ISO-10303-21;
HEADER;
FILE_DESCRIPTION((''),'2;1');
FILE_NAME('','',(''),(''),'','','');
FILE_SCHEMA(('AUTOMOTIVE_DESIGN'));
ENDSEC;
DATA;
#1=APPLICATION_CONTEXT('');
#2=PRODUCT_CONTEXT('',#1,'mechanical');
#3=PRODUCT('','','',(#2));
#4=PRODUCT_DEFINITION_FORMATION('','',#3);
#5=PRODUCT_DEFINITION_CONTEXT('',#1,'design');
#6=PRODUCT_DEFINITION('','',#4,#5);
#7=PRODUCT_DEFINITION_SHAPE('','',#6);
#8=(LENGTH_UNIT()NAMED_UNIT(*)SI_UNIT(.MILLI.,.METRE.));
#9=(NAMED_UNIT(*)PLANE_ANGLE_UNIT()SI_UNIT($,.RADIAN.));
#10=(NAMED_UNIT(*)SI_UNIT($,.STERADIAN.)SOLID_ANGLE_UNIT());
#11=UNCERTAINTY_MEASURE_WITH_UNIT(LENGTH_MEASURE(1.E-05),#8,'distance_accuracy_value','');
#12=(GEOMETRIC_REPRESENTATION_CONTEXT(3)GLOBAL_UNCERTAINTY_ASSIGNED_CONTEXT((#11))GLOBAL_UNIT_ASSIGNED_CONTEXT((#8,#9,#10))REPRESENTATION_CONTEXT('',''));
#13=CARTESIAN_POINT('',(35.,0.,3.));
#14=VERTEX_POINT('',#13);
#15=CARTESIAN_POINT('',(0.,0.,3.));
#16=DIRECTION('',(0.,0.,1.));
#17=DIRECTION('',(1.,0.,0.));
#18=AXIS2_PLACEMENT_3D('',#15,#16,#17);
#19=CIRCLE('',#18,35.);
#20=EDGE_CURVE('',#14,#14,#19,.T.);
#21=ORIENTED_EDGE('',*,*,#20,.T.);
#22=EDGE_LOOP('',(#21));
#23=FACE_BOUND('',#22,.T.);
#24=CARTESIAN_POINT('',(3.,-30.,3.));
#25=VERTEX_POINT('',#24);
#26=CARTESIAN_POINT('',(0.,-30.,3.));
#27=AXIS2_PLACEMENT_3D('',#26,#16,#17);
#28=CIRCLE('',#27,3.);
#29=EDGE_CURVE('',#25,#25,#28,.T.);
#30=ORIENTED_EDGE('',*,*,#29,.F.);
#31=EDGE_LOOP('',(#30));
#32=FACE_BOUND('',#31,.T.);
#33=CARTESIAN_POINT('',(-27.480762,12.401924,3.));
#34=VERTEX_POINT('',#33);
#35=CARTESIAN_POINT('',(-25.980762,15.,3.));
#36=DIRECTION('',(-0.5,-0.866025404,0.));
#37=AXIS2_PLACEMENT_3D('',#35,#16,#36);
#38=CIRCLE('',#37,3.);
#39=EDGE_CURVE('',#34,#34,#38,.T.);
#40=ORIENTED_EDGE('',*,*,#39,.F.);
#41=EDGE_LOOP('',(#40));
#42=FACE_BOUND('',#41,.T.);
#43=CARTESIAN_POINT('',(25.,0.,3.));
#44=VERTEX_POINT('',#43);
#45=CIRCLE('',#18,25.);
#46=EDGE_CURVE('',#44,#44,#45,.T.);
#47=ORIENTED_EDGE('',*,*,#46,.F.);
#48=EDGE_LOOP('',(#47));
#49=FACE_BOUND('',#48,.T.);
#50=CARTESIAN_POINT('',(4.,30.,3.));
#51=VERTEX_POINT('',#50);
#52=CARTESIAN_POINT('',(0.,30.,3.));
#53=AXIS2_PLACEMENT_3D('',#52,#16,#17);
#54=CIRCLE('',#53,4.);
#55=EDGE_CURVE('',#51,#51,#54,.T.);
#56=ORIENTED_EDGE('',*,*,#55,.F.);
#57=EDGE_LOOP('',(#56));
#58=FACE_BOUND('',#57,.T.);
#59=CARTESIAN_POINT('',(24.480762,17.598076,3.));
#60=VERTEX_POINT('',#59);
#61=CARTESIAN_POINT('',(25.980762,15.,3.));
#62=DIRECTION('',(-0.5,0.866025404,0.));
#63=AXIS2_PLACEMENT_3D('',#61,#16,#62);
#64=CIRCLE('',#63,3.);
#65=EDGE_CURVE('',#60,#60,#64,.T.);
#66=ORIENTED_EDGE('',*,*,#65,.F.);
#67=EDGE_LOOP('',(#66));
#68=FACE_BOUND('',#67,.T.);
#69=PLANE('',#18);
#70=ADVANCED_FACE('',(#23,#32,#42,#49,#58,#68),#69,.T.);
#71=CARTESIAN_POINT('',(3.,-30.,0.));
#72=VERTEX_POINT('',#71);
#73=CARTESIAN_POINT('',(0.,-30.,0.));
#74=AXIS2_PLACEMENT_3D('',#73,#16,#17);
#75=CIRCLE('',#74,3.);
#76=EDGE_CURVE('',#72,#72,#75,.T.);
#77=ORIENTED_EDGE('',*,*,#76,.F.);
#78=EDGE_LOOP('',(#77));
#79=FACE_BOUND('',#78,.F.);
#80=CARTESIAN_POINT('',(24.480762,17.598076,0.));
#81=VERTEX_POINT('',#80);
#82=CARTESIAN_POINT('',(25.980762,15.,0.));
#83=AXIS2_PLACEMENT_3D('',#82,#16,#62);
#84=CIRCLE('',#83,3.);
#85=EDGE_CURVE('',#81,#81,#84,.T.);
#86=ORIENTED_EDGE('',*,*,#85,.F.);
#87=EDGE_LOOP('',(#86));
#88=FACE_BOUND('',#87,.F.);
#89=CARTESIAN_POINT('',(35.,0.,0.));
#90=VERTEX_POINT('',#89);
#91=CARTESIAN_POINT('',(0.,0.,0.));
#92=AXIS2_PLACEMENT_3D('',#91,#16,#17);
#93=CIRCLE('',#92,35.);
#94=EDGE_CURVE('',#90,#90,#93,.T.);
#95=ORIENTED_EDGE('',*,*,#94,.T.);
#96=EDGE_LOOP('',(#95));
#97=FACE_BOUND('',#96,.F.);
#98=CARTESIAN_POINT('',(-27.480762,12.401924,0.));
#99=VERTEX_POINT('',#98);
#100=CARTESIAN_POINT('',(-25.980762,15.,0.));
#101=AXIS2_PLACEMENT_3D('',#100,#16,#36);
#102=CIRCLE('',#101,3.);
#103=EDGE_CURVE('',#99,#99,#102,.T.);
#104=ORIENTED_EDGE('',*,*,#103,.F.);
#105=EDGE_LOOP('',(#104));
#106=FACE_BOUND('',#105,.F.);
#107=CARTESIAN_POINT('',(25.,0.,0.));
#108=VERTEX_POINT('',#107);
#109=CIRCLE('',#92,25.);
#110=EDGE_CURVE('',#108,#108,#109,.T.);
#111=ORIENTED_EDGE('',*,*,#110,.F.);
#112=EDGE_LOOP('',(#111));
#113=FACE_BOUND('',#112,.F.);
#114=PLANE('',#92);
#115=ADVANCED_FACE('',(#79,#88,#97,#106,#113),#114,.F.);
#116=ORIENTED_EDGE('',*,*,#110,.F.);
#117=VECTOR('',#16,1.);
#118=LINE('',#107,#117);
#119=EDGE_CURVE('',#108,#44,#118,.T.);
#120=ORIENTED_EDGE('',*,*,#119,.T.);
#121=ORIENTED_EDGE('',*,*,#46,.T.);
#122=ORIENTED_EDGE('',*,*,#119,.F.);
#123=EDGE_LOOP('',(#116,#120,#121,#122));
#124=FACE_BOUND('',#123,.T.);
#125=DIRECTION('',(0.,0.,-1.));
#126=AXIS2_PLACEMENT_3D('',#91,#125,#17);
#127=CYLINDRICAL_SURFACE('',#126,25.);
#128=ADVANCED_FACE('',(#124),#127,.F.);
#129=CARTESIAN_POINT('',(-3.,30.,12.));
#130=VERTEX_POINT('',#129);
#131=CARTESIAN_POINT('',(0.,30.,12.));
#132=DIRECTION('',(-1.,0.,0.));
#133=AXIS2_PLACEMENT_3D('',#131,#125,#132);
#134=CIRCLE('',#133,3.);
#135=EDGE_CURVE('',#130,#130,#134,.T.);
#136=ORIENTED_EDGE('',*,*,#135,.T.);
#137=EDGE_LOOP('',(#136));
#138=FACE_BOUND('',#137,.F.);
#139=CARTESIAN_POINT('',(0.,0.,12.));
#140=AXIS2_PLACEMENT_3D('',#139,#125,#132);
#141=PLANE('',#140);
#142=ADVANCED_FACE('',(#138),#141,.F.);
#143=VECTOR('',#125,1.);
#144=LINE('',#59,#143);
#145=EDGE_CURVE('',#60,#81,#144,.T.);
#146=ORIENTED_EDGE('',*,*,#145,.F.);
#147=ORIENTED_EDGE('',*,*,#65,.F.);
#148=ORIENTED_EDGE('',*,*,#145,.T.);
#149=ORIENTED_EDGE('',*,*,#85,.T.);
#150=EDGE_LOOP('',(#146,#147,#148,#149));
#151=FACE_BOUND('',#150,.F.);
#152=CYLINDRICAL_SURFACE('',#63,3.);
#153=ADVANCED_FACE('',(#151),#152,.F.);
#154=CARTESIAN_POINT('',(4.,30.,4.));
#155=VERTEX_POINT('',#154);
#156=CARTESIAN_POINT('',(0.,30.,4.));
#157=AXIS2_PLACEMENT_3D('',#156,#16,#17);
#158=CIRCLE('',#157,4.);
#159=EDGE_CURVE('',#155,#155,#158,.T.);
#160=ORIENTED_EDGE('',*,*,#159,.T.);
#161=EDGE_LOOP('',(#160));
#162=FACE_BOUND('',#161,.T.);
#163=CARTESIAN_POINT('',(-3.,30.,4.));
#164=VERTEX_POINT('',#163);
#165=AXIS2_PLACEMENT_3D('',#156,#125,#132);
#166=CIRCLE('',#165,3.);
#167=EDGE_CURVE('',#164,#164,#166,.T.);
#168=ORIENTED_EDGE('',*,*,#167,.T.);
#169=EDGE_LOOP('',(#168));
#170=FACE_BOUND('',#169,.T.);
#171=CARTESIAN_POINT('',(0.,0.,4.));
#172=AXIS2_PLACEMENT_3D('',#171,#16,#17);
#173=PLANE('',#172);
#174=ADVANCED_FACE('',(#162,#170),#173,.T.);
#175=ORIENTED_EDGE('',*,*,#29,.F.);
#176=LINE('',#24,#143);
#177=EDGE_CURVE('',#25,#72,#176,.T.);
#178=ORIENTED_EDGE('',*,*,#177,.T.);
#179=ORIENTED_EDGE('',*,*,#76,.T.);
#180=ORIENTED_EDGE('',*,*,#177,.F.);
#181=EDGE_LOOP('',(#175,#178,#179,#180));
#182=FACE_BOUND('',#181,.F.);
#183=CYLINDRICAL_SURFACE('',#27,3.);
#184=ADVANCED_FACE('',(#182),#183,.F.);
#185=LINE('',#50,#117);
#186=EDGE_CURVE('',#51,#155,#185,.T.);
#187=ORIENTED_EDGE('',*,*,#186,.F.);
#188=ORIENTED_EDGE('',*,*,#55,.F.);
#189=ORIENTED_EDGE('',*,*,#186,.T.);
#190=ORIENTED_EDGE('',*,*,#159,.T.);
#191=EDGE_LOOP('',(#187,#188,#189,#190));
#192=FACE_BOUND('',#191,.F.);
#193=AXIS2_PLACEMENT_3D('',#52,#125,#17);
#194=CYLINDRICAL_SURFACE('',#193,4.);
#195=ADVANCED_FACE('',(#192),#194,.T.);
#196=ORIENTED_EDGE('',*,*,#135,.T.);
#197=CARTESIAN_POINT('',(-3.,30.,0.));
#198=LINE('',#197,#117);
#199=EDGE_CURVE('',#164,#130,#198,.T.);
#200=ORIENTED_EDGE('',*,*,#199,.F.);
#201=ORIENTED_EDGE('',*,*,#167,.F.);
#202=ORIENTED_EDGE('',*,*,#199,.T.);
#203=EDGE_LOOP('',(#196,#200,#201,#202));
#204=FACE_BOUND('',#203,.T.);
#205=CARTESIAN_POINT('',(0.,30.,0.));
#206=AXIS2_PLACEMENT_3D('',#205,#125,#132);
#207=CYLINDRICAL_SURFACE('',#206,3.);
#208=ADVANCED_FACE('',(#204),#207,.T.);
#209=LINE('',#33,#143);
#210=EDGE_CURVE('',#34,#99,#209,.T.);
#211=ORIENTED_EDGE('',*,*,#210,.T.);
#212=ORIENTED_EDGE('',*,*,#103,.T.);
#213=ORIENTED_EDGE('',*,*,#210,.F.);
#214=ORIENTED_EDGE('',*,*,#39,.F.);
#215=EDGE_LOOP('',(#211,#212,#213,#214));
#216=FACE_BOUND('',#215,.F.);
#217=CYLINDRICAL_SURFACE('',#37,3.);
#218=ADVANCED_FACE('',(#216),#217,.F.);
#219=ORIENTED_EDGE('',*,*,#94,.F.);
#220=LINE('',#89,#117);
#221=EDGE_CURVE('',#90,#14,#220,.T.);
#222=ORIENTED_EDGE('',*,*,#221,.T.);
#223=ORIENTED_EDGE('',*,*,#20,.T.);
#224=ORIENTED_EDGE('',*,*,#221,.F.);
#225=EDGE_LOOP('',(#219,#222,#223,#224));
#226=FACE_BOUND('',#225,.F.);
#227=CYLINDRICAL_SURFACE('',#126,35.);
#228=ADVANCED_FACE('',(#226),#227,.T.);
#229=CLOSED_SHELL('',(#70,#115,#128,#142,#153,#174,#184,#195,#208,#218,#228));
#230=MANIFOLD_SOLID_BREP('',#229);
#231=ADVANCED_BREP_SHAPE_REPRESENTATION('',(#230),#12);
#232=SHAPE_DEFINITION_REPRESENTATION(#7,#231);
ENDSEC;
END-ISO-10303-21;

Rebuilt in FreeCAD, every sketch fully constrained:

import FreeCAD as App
import Part
import Sketcher
from FreeCAD import Vector

doc = App.newDocument("Part")
body = doc.addObject("PartDesign::Body", "Body")

sketch1 = body.newObject("Sketcher::SketchObject", "Sketch")
sketch1.AttachmentSupport = (doc.getObject("XY_Plane"), [""])
sketch1.MapMode = "FlatFace"
sketch1.addGeometry(Part.Circle(Vector(0, 0, 0), Vector(0, 0, 1), 35), False)
sketch1.addGeometry(Part.Circle(Vector(0, 0, 0), Vector(0, 0, 1), 25), False)
sketch1.addGeometry(Part.Circle(Vector(0, 30, 0), Vector(0, 0, 1), 3), False)
sketch1.addConstraint(Sketcher.Constraint("Coincident", 0, 3, -1, 1))
sketch1.addConstraint(Sketcher.Constraint("Coincident", 1, 3, -1, 1))
sketch1.addConstraint(Sketcher.Constraint("PointOnObject", 2, 3, -2))
sketch1.addConstraint(Sketcher.Constraint("Diameter", 2, 6.0))
sketch1.addConstraint(Sketcher.Constraint("Diameter", 0, 70.0))
sketch1.addConstraint(Sketcher.Constraint("Diameter", 1, 50.0))
sketch1.addConstraint(Sketcher.Constraint("DistanceY", -1, 1, 2, 3, 30.0))
pad1 = body.newObject("PartDesign::Pad", "Pad")
pad1.Profile = sketch1
pad1.Length = 3

sketch2 = body.newObject("Sketcher::SketchObject", "Sketch001")
sketch2.AttachmentSupport = (doc.getObject("XY_Plane"), [""])
sketch2.MapMode = "FlatFace"
sketch2.addGeometry(Part.Circle(Vector(0, 30, 0), Vector(0, 0, 1), 3), False)
sketch2.addConstraint(Sketcher.Constraint("PointOnObject", 0, 3, -2))
sketch2.addConstraint(Sketcher.Constraint("Diameter", 0, 6.0))
sketch2.addConstraint(Sketcher.Constraint("DistanceY", -1, 1, 0, 3, 30.0))
pad2 = body.newObject("PartDesign::Pad", "Pad001")
pad2.Profile = sketch2
pad2.Length = 12

sketch3 = body.newObject("Sketcher::SketchObject", "Sketch002")
sketch3.AttachmentSupport = (doc.getObject("XY_Plane"), [""])
sketch3.MapMode = "FlatFace"
sketch3.AttachmentOffset = App.Placement(Vector(0, 0, 3), App.Rotation())
sketch3.addGeometry(Part.Circle(Vector(0, 30, 0), Vector(0, 0, 1), 4), False)
sketch3.addGeometry(Part.Circle(Vector(0, 30, 0), Vector(0, 0, 1), 3), False)
sketch3.addConstraint(Sketcher.Constraint("Coincident", 1, 3, 0, 3))
sketch3.addConstraint(Sketcher.Constraint("PointOnObject", 0, 3, -2))
sketch3.addConstraint(Sketcher.Constraint("Diameter", 0, 8.0))
sketch3.addConstraint(Sketcher.Constraint("Diameter", 1, 6.0))
sketch3.addConstraint(Sketcher.Constraint("DistanceY", -1, 1, 0, 3, 30.0))
pad3 = body.newObject("PartDesign::Pad", "Pad002")
pad3.Profile = sketch3
pad3.Length = 1

sketch4 = body.newObject("Sketcher::SketchObject", "Sketch003")
sketch4.AttachmentSupport = (doc.getObject("XY_Plane"), [""])
sketch4.MapMode = "FlatFace"
sketch4.AttachmentOffset = App.Placement(Vector(0, 0, 3), App.Rotation())
sketch4.addGeometry(Part.Circle(Vector(0, -30, 0), Vector(0, 0, 1), 3), False)
sketch4.addConstraint(Sketcher.Constraint("PointOnObject", 0, 3, -2))
sketch4.addConstraint(Sketcher.Constraint("Diameter", 0, 6.0))
sketch4.addConstraint(Sketcher.Constraint("DistanceY", 0, 3, -1, 1, 30.0))
pocket1 = body.newObject("PartDesign::Pocket", "Pocket")
pocket1.Profile = sketch4
pocket1.Length = 10
doc.recompute()

polarpattern = body.newObject("PartDesign::PolarPattern", "PolarPattern")
polarpattern.Originals = [pocket1]
polarpattern.Axis = (doc.getObject("Z_Axis"), [""])
polarpattern.Angle = 360
polarpattern.Occurrences = 3
body.Tip = polarpattern

doc.recompute()
